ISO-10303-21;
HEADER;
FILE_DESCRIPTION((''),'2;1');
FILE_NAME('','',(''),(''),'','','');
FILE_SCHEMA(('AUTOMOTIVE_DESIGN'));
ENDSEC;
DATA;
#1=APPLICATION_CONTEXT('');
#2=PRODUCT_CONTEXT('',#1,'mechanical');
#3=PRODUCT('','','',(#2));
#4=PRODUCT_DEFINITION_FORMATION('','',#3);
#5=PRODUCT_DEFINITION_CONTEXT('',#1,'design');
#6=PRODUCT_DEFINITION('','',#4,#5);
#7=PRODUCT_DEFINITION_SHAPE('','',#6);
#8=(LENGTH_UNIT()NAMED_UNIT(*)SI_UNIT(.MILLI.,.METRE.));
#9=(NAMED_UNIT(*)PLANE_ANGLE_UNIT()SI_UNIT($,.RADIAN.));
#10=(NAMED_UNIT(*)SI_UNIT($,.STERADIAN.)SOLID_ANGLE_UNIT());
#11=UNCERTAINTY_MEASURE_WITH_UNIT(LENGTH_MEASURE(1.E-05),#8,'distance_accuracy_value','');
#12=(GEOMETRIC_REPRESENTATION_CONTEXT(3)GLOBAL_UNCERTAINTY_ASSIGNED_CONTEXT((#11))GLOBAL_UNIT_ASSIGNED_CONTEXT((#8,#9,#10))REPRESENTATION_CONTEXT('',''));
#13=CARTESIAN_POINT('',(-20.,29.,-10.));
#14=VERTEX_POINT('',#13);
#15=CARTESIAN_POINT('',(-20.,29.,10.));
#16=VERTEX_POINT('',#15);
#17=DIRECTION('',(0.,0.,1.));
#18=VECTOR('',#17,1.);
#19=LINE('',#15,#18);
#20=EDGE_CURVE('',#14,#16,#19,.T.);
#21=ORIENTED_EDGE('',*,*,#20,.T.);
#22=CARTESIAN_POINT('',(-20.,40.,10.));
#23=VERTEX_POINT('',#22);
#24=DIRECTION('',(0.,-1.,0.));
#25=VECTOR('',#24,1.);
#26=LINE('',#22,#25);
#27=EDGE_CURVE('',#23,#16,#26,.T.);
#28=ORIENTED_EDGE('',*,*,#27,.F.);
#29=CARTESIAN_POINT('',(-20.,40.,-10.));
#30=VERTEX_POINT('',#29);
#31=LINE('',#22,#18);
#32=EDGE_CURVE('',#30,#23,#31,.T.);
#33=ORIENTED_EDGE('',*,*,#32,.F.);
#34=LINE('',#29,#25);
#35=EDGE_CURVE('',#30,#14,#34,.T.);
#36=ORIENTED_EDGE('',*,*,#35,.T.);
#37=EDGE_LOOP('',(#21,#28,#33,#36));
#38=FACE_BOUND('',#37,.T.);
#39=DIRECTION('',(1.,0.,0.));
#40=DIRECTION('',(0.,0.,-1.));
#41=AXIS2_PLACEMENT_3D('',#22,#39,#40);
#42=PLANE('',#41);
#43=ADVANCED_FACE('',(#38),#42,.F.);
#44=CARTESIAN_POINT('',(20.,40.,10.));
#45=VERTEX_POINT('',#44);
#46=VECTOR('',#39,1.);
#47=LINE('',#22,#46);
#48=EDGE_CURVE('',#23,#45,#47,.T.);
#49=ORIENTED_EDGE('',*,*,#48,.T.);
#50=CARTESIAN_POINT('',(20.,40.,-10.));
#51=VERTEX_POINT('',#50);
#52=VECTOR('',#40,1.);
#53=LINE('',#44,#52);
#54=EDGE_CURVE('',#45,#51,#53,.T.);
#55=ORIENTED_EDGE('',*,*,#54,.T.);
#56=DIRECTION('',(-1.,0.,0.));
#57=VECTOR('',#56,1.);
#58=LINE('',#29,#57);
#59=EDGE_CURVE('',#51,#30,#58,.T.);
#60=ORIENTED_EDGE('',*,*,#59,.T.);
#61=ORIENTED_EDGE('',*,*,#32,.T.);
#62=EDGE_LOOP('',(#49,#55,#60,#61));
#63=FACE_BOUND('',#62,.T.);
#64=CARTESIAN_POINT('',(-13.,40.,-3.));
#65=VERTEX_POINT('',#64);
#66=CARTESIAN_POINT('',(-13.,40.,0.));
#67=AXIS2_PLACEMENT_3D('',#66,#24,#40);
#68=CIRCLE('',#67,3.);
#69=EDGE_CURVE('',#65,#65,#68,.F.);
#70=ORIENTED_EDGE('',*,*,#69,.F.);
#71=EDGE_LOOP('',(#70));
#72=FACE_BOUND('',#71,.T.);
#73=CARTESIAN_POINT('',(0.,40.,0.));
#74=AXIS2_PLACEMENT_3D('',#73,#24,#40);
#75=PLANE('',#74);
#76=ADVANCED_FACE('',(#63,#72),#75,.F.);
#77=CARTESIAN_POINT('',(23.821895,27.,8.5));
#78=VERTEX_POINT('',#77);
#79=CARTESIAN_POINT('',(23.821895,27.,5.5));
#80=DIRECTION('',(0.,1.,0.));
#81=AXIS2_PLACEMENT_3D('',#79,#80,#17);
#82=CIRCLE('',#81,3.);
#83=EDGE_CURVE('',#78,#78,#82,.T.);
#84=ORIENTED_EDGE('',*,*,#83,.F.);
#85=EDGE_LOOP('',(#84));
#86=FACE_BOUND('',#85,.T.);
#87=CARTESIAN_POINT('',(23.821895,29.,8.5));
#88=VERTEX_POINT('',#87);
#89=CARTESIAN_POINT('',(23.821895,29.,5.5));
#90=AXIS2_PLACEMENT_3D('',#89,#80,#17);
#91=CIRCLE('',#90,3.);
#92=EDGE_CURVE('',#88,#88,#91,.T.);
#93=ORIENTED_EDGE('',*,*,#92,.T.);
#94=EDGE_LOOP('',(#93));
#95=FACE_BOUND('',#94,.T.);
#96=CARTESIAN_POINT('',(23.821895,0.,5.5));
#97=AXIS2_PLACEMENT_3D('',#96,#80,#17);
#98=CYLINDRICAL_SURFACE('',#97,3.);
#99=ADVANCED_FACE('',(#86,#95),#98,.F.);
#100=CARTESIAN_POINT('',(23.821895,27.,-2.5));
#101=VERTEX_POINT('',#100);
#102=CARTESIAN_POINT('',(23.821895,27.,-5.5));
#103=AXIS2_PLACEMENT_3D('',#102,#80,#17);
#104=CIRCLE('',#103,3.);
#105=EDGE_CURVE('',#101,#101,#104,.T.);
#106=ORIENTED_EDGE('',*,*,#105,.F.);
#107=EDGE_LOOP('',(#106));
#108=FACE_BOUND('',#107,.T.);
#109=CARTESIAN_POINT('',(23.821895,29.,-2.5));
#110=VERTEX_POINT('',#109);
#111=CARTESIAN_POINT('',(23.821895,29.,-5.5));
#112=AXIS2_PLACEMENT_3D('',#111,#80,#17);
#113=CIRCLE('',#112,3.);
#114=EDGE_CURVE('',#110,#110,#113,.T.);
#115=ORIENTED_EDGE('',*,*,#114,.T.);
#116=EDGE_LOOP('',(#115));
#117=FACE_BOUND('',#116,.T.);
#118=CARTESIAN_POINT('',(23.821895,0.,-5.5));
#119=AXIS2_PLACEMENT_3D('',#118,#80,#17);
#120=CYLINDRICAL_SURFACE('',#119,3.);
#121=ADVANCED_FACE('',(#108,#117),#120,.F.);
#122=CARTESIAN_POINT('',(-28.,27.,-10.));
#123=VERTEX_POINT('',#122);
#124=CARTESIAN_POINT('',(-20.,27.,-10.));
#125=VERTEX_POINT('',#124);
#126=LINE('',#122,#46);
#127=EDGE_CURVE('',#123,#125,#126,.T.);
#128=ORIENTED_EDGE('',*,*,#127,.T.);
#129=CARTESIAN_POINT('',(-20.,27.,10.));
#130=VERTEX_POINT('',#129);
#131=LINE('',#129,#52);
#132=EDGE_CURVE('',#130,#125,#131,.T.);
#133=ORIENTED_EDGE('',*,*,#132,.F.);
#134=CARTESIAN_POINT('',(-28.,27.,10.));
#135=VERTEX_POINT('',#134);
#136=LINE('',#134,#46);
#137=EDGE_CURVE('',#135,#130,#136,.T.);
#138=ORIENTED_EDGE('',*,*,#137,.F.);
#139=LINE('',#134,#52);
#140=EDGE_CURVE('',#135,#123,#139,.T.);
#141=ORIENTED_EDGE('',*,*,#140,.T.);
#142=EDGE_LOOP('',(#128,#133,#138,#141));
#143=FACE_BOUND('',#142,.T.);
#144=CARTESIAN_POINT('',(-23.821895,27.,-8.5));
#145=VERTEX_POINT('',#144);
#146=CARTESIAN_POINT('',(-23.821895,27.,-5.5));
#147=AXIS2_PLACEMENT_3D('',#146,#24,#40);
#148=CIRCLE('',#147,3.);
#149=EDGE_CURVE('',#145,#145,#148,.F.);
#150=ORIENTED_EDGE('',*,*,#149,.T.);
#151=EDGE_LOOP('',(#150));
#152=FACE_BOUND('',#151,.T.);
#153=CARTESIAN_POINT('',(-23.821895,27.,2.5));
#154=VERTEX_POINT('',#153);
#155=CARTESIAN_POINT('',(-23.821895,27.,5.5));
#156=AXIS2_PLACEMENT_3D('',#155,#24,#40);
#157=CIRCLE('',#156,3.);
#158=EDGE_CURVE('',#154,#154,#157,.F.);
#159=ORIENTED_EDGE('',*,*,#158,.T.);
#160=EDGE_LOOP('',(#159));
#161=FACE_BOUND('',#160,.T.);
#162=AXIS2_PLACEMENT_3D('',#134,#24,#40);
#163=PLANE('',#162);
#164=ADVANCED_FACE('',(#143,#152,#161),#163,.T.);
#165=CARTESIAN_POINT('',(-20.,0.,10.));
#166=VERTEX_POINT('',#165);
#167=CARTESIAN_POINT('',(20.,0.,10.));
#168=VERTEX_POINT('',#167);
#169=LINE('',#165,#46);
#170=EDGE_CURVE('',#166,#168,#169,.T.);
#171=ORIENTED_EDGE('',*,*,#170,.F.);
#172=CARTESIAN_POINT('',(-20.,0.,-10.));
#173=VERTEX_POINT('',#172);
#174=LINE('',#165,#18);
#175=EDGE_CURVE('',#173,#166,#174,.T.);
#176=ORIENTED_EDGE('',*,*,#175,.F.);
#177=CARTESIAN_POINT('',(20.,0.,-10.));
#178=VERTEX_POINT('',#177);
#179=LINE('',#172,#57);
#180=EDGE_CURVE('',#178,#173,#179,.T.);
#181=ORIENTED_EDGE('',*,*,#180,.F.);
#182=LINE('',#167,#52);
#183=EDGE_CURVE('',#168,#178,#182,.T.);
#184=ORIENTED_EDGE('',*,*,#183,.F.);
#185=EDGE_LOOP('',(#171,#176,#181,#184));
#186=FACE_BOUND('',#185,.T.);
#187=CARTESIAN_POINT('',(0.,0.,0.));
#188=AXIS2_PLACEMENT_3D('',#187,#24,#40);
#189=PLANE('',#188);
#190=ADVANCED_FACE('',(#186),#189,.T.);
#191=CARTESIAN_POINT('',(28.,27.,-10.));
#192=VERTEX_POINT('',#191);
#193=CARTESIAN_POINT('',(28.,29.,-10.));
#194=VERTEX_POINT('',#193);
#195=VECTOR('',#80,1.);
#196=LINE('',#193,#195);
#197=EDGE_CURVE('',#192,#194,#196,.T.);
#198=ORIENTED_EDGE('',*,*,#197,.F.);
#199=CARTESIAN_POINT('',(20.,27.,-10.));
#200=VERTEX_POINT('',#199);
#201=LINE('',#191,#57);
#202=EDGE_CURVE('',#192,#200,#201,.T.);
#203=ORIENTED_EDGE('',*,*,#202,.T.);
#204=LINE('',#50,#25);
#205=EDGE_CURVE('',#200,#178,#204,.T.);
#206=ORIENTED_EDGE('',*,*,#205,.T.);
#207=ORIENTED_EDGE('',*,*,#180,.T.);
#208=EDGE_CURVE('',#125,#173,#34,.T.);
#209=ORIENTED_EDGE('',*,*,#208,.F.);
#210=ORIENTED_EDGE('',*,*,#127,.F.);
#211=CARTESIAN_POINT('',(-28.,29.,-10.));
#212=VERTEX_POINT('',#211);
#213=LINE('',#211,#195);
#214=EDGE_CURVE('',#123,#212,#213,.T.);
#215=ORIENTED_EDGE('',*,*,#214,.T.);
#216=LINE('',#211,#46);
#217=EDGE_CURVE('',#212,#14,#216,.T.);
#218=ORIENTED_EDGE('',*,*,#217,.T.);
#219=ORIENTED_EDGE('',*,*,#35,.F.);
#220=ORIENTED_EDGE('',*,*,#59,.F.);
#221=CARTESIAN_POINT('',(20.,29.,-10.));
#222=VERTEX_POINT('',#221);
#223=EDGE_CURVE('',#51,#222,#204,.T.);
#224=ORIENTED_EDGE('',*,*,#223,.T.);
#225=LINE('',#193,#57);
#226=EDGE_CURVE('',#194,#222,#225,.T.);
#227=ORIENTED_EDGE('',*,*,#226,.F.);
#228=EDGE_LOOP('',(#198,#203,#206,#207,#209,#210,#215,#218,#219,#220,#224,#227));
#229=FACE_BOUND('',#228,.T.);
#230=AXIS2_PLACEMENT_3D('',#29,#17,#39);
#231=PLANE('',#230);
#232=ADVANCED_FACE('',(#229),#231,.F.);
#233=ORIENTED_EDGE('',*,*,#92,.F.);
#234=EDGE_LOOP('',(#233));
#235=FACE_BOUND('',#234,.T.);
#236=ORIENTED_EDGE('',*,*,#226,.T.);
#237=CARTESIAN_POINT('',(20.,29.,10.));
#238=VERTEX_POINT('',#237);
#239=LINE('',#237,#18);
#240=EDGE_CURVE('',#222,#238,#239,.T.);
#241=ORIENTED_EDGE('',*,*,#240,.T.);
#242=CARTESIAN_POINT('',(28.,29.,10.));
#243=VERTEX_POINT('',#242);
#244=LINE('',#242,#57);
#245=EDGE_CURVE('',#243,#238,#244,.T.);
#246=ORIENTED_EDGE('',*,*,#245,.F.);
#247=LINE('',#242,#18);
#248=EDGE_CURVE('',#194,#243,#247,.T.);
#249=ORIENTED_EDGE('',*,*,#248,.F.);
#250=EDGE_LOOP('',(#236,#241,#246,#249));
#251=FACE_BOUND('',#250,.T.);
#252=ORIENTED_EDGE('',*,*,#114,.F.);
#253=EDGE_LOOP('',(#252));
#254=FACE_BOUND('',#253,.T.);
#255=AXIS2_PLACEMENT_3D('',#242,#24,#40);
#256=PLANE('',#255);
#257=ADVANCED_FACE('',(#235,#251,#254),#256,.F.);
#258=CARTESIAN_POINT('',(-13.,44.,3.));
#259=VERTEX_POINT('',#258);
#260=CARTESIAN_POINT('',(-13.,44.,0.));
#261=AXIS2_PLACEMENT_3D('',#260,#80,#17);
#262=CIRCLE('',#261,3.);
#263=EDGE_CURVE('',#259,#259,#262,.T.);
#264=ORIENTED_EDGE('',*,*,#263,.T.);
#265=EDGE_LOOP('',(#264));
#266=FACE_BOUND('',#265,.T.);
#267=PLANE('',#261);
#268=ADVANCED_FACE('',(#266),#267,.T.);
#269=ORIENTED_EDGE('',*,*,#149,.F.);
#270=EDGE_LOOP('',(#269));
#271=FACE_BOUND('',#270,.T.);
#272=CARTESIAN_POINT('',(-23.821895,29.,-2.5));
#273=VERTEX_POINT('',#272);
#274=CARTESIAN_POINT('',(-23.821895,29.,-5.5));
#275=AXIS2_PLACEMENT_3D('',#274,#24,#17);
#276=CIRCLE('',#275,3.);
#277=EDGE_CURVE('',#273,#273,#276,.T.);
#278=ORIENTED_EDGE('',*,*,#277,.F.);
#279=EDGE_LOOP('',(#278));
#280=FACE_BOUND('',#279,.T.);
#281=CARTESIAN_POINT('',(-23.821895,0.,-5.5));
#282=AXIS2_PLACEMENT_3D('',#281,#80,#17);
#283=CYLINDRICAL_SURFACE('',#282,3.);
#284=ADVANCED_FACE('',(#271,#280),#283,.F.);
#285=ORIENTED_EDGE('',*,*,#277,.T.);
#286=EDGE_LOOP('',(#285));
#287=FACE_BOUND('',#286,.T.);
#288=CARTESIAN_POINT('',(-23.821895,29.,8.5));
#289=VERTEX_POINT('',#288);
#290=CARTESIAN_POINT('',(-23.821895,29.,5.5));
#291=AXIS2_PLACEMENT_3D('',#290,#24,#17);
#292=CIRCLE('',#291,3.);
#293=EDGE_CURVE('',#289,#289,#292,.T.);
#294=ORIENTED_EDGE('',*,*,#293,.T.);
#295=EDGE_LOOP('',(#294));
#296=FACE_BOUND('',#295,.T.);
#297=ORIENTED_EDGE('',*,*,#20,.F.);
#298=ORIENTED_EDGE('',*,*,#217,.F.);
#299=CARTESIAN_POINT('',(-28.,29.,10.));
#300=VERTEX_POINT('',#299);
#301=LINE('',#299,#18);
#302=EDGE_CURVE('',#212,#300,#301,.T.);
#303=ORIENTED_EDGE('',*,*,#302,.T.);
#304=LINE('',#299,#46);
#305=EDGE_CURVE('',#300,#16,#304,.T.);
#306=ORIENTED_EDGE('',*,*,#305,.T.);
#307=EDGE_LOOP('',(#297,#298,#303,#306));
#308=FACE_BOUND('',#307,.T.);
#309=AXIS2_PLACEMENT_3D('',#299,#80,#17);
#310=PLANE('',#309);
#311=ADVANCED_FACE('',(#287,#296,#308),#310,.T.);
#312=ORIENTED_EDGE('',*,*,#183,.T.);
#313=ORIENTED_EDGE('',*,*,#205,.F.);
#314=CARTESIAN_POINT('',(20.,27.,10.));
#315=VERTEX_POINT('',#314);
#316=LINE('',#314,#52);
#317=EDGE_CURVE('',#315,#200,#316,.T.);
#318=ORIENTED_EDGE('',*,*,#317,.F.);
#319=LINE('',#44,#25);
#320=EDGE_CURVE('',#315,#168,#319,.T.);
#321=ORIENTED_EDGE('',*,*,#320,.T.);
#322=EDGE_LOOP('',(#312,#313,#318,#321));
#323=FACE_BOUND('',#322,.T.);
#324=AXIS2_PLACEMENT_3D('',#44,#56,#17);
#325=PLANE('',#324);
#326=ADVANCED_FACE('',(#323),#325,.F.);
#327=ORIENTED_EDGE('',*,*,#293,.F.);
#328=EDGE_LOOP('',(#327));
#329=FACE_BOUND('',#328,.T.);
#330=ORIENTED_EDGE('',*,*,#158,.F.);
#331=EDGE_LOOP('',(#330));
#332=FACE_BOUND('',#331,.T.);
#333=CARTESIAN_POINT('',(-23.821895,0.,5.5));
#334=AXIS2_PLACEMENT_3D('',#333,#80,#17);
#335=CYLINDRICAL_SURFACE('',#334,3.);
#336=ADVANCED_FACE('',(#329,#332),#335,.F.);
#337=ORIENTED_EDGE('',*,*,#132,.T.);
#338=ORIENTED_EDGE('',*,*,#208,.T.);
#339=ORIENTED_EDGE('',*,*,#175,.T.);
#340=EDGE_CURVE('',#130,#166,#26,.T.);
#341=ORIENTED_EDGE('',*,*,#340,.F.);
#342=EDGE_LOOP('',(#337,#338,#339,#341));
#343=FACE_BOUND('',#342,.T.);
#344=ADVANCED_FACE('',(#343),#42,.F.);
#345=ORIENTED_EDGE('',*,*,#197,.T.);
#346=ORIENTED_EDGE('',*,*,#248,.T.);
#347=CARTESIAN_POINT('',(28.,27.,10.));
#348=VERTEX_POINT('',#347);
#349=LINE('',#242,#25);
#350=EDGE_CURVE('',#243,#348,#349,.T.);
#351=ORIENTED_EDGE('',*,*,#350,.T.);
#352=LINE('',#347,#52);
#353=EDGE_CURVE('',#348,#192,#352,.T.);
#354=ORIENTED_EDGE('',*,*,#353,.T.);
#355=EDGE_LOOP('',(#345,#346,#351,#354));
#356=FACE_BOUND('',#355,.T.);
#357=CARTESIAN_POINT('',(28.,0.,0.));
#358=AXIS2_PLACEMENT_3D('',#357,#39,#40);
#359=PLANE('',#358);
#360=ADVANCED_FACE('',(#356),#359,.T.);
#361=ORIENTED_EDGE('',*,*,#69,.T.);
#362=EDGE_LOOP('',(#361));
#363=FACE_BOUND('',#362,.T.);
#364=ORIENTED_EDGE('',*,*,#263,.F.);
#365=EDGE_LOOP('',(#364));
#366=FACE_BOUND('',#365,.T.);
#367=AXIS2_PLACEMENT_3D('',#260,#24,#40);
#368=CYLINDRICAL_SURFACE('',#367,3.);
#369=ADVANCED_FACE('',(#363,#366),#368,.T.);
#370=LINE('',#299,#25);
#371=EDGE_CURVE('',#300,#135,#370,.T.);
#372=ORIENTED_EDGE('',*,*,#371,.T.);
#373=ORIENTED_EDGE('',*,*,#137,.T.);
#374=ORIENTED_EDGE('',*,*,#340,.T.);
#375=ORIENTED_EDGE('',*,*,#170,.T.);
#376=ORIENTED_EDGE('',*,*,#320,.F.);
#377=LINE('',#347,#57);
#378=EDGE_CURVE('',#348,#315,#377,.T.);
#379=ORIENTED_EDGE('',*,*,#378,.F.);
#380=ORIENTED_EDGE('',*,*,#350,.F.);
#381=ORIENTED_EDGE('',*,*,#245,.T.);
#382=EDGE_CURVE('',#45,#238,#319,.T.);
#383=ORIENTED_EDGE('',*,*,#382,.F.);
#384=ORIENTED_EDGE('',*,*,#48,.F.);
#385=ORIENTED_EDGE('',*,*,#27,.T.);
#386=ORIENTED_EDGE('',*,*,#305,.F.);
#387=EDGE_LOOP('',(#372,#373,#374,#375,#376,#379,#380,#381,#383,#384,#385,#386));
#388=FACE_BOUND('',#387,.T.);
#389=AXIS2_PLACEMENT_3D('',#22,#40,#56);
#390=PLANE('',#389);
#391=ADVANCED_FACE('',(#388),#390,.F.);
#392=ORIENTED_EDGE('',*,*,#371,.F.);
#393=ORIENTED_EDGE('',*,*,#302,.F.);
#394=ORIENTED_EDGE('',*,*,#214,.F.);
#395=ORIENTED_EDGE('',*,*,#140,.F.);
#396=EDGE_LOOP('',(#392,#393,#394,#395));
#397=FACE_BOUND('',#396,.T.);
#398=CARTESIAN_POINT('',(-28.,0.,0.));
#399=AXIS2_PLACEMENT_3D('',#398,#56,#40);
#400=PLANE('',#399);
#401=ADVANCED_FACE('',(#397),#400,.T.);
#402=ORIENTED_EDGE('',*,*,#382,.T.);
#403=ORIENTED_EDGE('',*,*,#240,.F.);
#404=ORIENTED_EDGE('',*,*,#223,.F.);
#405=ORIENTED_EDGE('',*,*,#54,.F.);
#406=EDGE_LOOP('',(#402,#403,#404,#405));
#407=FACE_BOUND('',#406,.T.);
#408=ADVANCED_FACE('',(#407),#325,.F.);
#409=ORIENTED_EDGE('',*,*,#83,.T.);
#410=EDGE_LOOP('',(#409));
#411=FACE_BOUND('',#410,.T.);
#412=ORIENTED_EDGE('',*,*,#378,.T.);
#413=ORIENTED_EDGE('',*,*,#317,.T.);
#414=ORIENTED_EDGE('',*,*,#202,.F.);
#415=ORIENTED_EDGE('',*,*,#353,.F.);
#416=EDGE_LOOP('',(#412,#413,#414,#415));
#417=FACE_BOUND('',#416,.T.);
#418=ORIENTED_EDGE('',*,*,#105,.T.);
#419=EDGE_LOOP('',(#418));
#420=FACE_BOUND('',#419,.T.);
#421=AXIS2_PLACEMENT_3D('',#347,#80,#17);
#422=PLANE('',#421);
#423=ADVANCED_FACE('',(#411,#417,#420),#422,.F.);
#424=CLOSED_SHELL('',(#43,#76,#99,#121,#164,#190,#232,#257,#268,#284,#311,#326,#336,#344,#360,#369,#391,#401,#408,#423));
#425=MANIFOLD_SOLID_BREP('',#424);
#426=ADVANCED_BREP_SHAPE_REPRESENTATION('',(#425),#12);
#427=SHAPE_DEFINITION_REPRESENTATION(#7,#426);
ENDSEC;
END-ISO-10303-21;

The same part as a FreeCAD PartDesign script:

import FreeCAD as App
import Part
import Sketcher
Q = App.Units.Quantity


def add_polygon(sketch, points):
    """Adds a closed chain of lines whose ends are joined by coincident constraints."""
    first, n = sketch.GeometryCount, len(points)
    for a, b in zip(points, points[1:] + points[:1]):
        sketch.addGeometry(Part.LineSegment(App.Vector(*a, 0), App.Vector(*b, 0)), False)
    for i in range(n):
        sketch.addConstraint(Sketcher.Constraint("Coincident", first + i, 2, first + (i + 1) % n, 1))

doc = App.newDocument("Part")
body = doc.addObject("PartDesign::Body", "Body")

sketch1 = body.newObject("Sketcher::SketchObject", "Sketch")
sketch1.AttachmentSupport = (doc.getObject("XZ_Plane"), [""])
sketch1.MapMode = "FlatFace"
add_polygon(sketch1, [(-20, -10), (-20, 10), (20, 10), (20, -10)])
sketch1.addConstraint([
    Sketcher.Constraint("Vertical", 0),
    Sketcher.Constraint("Horizontal", 1),
    Sketcher.Constraint("Vertical", 2),
    Sketcher.Constraint("Horizontal", 3),
    Sketcher.Constraint("Symmetric", 0, 2, 2, 2, -1, 1),
    Sketcher.Constraint("DistanceX", 1, 1, 1, 2, Q("40 mm")),
    Sketcher.Constraint("DistanceY", 0, 1, 0, 2, Q("20 mm")),
])
pad1 = body.newObject("PartDesign::Pad", "Pad")
pad1.Profile = sketch1
pad1.Length = 40
pad1.Reversed = True

sketch2 = body.newObject("Sketcher::SketchObject", "Sketch001")
sketch2.AttachmentSupport = (doc.getObject("XZ_Plane"), [""])
sketch2.MapMode = "FlatFace"
sketch2.AttachmentOffset = App.Placement(App.Vector(0, 0, -40), App.Rotation())
sketch2.addGeometry(Part.Circle(App.Vector(-13, 0, 0), App.Vector(0, 0, 1), 3), False)
sketch2.addConstraint([
    Sketcher.Constraint("PointOnObject", 0, 3, -1),
    Sketcher.Constraint("Diameter", 0, Q("6 mm")),
    Sketcher.Constraint("DistanceX", 0, 3, -1, 1, Q("13 mm")),
])
pad2 = body.newObject("PartDesign::Pad", "Pad001")
pad2.Profile = sketch2
pad2.Length = 4
pad2.Reversed = True

sketch3 = body.newObject("Sketcher::SketchObject", "Sketch002")
sketch3.AttachmentSupport = (doc.getObject("YZ_Plane"), [""])
sketch3.MapMode = "FlatFace"
sketch3.AttachmentOffset = App.Placement(App.Vector(0, 0, 20), App.Rotation())
add_polygon(sketch3, [(29, 10), (27, 10), (27, -10), (29, -10)])
sketch3.addConstraint([
    Sketcher.Constraint("Horizontal", 0),
    Sketcher.Constraint("Vertical", 1),
    Sketcher.Constraint("Horizontal", 2),
    Sketcher.Constraint("Vertical", 3),
    Sketcher.Constraint("DistanceX", 0, 2, 0, 1, Q("2 mm")),
    Sketcher.Constraint("DistanceY", 1, 2, 1, 1, Q("20 mm")),
    Sketcher.Constraint("DistanceX", -1, 1, 0, 2, Q("27 mm")),
    Sketcher.Constraint("DistanceY", -1, 1, 0, 2, Q("10 mm")),
])
pad3 = body.newObject("PartDesign::Pad", "Pad002")
pad3.Profile = sketch3
pad3.Length = 8

sketch4 = body.newObject("Sketcher::SketchObject", "Sketch003")
sketch4.AttachmentSupport = (doc.getObject("XZ_Plane"), [""])
sketch4.MapMode = "FlatFace"
sketch4.AttachmentOffset = App.Placement(App.Vector(0, 0, -29), App.Rotation())
sketch4.addGeometry([
    Part.Circle(App.Vector(23.8, -5.5, 0), App.Vector(0, 0, 1), 3),
    Part.Circle(App.Vector(23.8, 5.5, 0), App.Vector(0, 0, 1), 3),
], False)
sketch4.addConstraint([
    Sketcher.Constraint("Equal", 0, 1),
    Sketcher.Constraint("Symmetric", 0, 3, 1, 3, -1),
    Sketcher.Constraint("Diameter", 0, Q("6 mm")),
    Sketcher.Constraint("DistanceY", 0, 3, 1, 3, Q("11 mm")),
    Sketcher.Constraint("DistanceX", -1, 1, 0, 3, Q("23.821895 mm")),
])
pocket1 = body.newObject("PartDesign::Pocket", "Pocket")
pocket1.Profile = sketch4
pocket1.Type = "ThroughAll"
pocket1.Reversed = True
doc.recompute()

mirrored = body.newObject("PartDesign::Mirrored", "Mirrored")
mirrored.Originals = [pad3, pocket1]
mirrored.MirrorPlane = (doc.getObject("YZ_Plane"), [""])
body.Tip = mirrored

doc.recompute()
